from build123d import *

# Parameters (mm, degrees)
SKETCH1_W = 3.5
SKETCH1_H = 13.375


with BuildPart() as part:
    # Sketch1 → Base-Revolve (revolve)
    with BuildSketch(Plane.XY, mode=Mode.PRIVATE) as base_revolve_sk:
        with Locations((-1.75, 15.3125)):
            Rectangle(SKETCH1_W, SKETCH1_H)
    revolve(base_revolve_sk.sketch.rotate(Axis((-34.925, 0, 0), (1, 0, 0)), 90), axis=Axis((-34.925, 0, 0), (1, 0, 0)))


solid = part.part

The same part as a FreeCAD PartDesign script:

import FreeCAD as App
import Part
import Sketcher

V = App.Vector


def add_polygon(sketch, points):
    """Adds a closed chain of lines whose ends are joined by coincident constraints."""
    first, n = sketch.GeometryCount, len(points)
    for a, b in zip(points, points[1:] + points[:1]):
        sketch.addGeometry(Part.LineSegment(App.Vector(*a, 0), App.Vector(*b, 0)), False)
    for i in range(n):
        sketch.addConstraint(Sketcher.Constraint("Coincident", first + i, 2, first + (i + 1) % n, 1))

doc = App.newDocument("Part")
params = doc.addObject("Spreadsheet::Sheet", "Params")
for row, (alias, value) in enumerate([
    ("sketch1_width", "3.5 mm"),
    ("revolution_angle", "360 deg"),
], start=1):
    params.set(f"A{row}", alias)
    params.set(f"B{row}", "=" + value)
    params.setAlias(f"B{row}", alias)

body = doc.addObject("PartDesign::Body", "Body")

# Sketch on XY plane
sketch1 = doc.addObject("Sketcher::SketchObject", "Sketch")
body.addObject(sketch1)
sketch1.AttachmentSupport = (doc.XY_Plane, [""])
sketch1.MapMode = "FlatFace"
add_polygon(sketch1, [(-3.5, 22), (-3.5, 8.6), (0, 8.6), (0, 22)])  # lines 0-3
sketch1.addConstraint(Sketcher.Constraint("Vertical", 0))
sketch1.addConstraint(Sketcher.Constraint("Horizontal", 1))
sketch1.addConstraint(Sketcher.Constraint("Vertical", 2))
sketch1.addConstraint(Sketcher.Constraint("Horizontal", 3))
sketch1.addConstraint(Sketcher.Constraint("PointOnObject", 1, 2, -2))
sketch1.addConstraint(Sketcher.Constraint("DistanceX", 1, 1, 1, 2, 3.5))
sketch1.addConstraint(Sketcher.Constraint("DistanceY", -1, 1, 2, 2, 22.0))
sketch1.addConstraint(Sketcher.Constraint("DistanceY", 0, 2, 0, 1, 13.375))
sketch1.setExpression("Constraints[9]", "Params.sketch1_width")
revolution = doc.addObject("PartDesign::Revolution", "Revolution")
body.addObject(revolution)
revolution.Profile = sketch1
revolution.ReferenceAxis = (sketch1, ["H_Axis"])
revolution.setExpression("Angle", "Params.revolution_angle")

doc.recompute()
